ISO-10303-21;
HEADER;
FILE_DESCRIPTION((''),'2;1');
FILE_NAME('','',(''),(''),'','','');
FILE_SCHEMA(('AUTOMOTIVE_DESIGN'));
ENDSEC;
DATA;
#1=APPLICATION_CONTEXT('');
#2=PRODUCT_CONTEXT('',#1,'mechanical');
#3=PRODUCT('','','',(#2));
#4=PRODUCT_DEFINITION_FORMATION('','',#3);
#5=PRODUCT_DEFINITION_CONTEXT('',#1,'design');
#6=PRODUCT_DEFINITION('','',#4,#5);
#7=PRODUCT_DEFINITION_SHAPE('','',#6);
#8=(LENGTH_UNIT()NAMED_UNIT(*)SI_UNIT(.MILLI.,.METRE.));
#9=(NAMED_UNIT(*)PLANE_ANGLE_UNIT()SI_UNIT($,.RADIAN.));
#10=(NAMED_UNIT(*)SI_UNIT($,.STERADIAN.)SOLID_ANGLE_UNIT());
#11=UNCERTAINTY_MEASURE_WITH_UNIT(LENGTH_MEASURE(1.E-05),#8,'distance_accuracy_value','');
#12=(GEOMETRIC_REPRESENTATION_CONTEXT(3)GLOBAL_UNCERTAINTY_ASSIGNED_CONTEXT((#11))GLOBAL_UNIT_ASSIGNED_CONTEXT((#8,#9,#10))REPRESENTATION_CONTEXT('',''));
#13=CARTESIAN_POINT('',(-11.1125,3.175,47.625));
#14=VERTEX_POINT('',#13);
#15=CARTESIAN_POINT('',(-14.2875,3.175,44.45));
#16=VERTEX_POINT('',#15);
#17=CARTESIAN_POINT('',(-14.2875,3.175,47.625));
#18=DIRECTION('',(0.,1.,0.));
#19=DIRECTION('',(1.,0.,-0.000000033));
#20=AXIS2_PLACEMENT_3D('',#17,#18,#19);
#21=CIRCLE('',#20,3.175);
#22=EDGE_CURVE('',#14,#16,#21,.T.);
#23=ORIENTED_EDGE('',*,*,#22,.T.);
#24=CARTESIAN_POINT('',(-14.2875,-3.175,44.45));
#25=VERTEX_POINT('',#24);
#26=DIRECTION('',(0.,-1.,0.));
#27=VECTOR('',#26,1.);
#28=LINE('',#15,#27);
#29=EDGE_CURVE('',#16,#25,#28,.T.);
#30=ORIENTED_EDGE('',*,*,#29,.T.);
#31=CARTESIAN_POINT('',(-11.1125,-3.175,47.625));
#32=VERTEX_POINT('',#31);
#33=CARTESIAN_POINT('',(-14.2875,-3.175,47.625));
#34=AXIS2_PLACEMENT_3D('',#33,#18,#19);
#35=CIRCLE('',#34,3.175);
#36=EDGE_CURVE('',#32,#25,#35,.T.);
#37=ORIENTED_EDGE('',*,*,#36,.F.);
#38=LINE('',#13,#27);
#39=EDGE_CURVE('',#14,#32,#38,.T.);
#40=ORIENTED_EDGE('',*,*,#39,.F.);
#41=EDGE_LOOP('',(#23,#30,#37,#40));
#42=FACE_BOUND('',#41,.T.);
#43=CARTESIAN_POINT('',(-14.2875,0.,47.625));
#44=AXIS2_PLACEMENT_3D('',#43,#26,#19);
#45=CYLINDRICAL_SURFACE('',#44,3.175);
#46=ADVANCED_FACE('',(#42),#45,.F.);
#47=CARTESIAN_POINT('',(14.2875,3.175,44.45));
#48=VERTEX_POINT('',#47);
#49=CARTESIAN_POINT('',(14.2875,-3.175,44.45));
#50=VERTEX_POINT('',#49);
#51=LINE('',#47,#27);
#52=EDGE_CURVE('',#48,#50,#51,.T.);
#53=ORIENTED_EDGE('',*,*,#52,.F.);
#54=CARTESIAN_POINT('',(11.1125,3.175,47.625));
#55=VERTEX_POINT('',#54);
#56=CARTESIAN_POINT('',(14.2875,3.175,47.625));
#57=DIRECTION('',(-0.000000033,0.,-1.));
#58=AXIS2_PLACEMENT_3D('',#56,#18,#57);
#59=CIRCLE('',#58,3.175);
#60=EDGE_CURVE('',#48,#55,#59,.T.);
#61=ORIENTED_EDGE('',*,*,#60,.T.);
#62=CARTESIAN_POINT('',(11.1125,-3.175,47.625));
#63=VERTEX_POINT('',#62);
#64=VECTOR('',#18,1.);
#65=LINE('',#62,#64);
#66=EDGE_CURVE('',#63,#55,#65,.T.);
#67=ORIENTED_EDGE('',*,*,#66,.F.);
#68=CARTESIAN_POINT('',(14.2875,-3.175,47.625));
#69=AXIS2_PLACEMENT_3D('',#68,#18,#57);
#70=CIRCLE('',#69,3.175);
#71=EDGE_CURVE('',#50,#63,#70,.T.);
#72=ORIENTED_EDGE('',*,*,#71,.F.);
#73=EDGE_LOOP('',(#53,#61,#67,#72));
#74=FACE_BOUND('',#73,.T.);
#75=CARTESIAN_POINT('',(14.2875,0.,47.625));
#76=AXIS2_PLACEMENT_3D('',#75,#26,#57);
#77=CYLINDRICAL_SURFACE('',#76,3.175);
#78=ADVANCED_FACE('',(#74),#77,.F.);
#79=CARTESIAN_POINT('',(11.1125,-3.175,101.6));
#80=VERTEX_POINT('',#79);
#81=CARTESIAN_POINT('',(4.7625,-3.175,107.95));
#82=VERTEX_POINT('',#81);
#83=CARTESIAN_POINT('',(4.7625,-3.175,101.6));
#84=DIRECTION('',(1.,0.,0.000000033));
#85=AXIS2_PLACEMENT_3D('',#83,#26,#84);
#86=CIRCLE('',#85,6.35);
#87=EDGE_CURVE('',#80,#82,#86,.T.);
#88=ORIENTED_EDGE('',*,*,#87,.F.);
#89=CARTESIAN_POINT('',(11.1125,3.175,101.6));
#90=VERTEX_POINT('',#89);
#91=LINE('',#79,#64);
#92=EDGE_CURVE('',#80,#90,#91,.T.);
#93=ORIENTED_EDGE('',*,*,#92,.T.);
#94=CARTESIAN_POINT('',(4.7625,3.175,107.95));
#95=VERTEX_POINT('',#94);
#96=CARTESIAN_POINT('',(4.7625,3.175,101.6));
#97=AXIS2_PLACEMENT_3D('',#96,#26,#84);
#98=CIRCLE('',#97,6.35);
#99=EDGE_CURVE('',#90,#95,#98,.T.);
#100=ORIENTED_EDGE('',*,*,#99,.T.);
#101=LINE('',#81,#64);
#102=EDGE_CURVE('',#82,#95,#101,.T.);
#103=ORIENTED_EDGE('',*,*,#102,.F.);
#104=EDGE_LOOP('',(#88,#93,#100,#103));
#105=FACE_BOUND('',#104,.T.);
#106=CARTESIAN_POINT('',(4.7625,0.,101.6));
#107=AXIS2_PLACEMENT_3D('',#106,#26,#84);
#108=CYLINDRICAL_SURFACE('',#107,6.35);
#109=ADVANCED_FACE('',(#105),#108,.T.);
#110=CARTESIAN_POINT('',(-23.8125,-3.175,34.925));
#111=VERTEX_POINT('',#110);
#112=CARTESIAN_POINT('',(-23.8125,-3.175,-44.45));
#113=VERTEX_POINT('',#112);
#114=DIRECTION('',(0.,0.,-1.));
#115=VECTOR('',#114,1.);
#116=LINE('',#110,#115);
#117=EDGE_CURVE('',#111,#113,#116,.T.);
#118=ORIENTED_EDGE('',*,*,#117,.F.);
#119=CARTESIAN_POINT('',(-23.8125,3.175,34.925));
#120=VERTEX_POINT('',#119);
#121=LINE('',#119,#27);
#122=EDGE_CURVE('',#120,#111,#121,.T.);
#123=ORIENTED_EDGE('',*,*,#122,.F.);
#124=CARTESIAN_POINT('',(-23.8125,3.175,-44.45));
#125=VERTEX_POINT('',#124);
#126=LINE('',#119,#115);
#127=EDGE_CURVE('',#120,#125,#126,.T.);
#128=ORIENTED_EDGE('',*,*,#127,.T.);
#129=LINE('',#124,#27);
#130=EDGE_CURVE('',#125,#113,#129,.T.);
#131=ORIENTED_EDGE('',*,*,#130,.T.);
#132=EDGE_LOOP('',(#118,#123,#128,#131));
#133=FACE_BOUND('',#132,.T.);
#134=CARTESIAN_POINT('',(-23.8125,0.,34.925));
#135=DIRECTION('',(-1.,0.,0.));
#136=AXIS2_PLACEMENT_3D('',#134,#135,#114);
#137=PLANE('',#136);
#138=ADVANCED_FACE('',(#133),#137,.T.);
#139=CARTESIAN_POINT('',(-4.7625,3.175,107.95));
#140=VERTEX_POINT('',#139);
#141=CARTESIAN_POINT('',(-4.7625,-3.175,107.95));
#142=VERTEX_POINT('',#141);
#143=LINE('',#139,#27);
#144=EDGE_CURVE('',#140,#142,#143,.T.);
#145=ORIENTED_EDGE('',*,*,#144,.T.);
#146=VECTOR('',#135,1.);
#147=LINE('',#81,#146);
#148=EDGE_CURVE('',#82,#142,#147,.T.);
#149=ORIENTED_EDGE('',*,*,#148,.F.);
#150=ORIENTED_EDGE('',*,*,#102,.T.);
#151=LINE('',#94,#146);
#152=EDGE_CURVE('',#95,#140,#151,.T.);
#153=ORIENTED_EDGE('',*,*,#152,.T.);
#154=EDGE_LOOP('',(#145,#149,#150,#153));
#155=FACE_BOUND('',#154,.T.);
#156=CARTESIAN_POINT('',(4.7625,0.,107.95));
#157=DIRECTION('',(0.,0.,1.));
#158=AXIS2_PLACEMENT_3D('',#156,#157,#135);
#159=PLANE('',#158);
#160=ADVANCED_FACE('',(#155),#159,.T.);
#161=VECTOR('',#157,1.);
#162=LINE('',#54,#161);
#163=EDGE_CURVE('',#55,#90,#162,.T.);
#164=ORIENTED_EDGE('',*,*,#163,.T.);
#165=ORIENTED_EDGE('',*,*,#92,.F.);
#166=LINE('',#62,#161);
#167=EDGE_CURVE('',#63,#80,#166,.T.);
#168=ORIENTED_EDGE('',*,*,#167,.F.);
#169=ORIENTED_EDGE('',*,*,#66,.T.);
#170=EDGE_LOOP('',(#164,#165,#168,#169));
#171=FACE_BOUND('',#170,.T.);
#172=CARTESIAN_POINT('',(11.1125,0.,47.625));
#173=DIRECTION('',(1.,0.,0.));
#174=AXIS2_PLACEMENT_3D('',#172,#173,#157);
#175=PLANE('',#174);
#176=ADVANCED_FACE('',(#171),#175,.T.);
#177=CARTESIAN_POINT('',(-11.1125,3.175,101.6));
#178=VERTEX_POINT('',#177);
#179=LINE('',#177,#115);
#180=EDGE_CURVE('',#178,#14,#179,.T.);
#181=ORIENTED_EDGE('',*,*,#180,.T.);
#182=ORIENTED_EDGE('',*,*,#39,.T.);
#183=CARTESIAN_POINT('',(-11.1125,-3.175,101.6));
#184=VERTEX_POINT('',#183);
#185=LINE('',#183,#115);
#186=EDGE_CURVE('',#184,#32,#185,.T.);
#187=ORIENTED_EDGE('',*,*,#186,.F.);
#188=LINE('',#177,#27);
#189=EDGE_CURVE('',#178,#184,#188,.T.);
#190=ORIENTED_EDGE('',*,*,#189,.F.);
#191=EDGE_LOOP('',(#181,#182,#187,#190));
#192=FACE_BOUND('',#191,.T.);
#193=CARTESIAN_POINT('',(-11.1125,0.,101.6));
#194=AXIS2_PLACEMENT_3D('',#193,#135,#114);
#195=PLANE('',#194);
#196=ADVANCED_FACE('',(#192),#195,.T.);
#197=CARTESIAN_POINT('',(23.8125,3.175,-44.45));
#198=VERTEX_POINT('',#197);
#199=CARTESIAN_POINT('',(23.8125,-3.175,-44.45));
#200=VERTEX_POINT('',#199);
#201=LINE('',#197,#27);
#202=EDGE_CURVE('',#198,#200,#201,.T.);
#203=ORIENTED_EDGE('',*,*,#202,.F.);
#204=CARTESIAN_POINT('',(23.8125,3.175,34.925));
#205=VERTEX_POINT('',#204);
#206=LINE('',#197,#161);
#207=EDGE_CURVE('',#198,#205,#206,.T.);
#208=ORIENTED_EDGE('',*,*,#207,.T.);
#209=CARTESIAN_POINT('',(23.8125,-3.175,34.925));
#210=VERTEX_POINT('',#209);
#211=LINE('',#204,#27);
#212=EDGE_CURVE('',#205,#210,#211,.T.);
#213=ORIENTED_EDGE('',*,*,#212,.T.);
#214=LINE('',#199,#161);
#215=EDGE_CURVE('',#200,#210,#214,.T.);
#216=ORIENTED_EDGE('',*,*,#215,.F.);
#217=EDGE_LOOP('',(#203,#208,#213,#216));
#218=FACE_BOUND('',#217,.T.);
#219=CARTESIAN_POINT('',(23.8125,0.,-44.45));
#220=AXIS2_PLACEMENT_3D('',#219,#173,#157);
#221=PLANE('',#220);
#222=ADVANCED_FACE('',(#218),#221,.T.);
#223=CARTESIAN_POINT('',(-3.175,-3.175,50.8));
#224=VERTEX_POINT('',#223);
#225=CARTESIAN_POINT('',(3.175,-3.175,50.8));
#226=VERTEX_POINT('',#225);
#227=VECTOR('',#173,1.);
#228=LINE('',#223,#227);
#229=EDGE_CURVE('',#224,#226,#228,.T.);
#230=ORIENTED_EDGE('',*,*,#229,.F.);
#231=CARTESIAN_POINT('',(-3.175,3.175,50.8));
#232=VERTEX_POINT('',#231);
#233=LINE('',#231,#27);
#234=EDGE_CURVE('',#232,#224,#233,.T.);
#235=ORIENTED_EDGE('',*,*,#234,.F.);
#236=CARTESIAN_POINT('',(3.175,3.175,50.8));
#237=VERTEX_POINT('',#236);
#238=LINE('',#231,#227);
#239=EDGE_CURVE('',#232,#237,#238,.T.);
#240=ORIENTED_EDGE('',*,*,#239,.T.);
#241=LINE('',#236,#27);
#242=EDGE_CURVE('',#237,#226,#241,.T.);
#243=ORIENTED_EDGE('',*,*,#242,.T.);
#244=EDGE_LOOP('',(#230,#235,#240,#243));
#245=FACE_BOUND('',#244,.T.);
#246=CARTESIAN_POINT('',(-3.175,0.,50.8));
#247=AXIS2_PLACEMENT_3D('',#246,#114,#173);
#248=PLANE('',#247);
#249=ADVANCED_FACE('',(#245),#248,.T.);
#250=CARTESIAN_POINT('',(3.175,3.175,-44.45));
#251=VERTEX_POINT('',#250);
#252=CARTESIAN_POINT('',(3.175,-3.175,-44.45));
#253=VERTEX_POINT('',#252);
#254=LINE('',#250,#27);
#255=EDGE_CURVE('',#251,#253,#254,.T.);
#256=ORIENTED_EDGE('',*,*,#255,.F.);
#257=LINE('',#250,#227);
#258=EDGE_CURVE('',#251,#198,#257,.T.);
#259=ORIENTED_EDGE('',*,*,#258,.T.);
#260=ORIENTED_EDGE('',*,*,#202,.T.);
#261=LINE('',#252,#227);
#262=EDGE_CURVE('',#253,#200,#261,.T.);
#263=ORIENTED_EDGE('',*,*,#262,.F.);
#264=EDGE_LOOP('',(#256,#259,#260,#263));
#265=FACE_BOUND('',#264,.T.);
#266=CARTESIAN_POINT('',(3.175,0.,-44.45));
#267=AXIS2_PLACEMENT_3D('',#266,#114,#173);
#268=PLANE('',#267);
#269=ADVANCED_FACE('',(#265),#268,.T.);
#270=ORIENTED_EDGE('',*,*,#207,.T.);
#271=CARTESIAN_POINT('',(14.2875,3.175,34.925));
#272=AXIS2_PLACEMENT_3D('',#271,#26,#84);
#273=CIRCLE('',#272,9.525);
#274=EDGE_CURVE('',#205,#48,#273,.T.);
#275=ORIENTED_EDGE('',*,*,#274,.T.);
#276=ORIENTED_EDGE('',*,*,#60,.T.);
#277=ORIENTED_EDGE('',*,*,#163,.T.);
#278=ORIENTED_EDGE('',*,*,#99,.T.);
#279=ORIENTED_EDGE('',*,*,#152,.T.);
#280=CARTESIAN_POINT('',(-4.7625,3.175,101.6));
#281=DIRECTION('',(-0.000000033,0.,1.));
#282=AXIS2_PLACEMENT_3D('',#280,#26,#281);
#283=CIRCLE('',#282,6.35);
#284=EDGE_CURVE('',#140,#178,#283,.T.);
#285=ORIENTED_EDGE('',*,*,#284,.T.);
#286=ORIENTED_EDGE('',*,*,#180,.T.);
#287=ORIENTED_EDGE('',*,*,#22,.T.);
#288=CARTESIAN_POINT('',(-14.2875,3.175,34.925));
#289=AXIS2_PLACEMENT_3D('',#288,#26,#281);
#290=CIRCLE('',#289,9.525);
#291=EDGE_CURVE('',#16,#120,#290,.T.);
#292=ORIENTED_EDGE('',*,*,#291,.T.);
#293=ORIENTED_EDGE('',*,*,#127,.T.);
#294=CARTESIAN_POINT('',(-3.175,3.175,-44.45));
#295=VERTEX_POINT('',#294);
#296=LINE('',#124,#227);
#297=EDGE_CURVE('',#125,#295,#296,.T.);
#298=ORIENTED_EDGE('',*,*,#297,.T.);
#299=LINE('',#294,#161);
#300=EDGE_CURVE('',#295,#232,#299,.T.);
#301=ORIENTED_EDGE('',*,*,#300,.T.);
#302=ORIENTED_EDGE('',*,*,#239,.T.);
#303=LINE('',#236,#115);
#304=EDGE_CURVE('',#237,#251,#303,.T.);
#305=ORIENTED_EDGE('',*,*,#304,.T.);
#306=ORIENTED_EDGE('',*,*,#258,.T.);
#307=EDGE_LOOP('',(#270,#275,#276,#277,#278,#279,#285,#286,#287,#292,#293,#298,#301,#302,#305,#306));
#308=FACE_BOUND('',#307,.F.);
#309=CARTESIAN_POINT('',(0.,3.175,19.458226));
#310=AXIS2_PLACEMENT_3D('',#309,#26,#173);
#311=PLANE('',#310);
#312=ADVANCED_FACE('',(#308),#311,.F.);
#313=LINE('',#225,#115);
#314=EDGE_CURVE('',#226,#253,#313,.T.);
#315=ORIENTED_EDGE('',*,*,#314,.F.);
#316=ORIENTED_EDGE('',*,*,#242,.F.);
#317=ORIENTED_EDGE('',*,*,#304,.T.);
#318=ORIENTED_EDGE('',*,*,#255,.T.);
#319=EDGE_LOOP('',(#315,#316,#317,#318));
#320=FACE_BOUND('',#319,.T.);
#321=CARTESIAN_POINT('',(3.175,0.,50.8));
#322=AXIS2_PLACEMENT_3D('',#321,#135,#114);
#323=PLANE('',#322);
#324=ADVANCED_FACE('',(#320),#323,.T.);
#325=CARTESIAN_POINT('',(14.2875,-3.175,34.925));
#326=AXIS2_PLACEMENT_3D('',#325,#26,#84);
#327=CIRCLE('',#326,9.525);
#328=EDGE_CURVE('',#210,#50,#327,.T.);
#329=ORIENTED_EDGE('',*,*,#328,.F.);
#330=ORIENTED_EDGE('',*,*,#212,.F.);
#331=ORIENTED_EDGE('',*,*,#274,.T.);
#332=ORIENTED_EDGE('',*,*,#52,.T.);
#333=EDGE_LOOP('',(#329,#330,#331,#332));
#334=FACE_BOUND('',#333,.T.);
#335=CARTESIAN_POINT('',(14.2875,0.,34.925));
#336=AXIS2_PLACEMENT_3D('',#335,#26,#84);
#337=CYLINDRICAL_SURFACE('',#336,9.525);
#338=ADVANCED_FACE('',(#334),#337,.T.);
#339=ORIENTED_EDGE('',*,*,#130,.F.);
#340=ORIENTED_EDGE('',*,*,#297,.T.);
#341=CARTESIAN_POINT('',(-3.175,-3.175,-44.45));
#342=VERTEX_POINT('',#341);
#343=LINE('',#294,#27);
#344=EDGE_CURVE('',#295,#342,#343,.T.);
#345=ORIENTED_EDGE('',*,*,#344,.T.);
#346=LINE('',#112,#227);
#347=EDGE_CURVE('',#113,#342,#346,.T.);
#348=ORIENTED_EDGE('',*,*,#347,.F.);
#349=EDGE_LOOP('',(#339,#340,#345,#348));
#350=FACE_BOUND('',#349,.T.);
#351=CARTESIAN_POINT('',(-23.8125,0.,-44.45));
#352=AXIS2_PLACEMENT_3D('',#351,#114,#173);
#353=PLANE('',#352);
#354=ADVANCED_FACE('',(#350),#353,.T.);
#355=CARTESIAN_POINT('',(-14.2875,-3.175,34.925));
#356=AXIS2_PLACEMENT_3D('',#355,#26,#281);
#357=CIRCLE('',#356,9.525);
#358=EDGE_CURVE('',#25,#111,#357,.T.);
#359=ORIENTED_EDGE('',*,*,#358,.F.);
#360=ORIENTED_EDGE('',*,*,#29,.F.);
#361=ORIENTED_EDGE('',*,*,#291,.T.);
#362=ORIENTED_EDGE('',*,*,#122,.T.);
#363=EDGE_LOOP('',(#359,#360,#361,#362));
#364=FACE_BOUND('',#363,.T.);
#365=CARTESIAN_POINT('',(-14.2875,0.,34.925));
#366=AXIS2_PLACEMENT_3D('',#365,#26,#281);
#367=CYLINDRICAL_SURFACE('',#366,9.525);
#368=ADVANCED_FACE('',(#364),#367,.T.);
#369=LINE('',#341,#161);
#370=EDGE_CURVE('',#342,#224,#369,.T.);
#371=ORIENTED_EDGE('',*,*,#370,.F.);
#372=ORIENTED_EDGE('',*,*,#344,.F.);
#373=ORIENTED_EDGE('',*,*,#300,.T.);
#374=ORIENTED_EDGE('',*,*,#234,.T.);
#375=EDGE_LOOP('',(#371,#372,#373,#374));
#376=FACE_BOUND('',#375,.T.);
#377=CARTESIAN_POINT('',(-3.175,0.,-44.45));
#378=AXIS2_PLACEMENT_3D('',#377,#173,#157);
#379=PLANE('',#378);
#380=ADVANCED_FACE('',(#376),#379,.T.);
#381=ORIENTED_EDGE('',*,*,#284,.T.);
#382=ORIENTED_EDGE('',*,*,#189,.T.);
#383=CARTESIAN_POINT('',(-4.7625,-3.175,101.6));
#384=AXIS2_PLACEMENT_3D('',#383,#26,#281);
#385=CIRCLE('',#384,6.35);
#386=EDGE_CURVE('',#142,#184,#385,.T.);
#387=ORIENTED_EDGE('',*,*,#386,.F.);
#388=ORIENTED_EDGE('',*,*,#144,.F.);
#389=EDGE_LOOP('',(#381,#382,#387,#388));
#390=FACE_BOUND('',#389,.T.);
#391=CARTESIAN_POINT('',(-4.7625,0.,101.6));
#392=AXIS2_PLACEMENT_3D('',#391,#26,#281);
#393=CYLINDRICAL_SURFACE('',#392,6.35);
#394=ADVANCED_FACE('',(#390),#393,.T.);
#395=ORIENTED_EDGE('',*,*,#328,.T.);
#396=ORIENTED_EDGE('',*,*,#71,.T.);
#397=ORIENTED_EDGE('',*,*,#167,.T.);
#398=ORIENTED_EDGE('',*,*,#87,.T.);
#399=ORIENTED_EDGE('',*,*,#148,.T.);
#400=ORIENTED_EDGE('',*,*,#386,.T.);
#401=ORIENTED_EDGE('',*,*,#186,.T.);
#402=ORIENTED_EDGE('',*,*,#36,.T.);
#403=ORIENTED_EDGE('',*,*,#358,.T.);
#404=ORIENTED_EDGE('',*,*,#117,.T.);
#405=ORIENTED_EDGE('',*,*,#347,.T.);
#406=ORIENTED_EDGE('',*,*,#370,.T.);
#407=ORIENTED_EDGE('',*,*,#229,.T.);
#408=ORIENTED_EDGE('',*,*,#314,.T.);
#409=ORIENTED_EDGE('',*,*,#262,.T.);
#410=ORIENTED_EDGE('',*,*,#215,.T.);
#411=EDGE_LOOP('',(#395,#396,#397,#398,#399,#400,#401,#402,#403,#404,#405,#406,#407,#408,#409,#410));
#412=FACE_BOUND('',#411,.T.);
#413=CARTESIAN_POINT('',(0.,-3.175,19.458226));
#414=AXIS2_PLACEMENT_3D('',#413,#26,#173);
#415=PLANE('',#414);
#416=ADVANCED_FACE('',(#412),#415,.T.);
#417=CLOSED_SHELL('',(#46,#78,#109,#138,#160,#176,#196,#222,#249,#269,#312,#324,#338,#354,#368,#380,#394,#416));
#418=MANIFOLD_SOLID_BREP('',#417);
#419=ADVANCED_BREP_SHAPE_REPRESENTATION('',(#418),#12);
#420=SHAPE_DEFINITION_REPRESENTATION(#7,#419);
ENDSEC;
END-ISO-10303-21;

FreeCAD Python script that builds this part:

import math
import FreeCAD as App
import Part
import Sketcher
from FreeCAD import Vector
Q = App.Units.Quantity

doc = App.newDocument("Part")
body = doc.addObject("PartDesign::Body", "Body")

# Sketch on XZ plane
sketch1 = body.newObject("Sketcher::SketchObject", "Sketch")
sketch1.AttachmentSupport = (doc.getObject("XZ_Plane"), [""])
sketch1.MapMode = "FlatFace"
sketch1.addGeometry([
    Part.LineSegment(Vector(4.7625, 107.95, 0), Vector(-4.7625, 107.95, 0)),  # 0
    Part.ArcOfCircle(Part.Circle(Vector(-4.7625, 101.6, 0), Vector(0, 0, 1), 6.35), math.radians(90.000002), math.radians(179.999998)),  # 1
    Part.LineSegment(Vector(-11.1125, 101.6, 0), Vector(-11.1125, 47.625, 0)),  # 2
    Part.ArcOfCircle(Part.Circle(Vector(-14.2875, 47.625, 0), Vector(0, 0, 1), 3.175), math.radians(-89.999998), math.radians(-0.000002)),  # 3
    Part.ArcOfCircle(Part.Circle(Vector(-14.2875, 34.925, 0), Vector(0, 0, 1), 9.525), math.radians(90.000002), math.radians(179.999998)),  # 4
    Part.LineSegment(Vector(-23.8125, 34.925, 0), Vector(-23.8125, -44.45, 0)),  # 5
    Part.LineSegment(Vector(-23.8125, -44.45, 0), Vector(-3.175, -44.45, 0)),  # 6
    Part.LineSegment(Vector(-3.175, -44.45, 0), Vector(-3.175, 50.8, 0)),  # 7
    Part.LineSegment(Vector(-3.175, 50.8, 0), Vector(3.175, 50.8, 0)),  # 8
    Part.LineSegment(Vector(3.175, 50.8, 0), Vector(3.175, -44.45, 0)),  # 9
    Part.LineSegment(Vector(3.175, -44.45, 0), Vector(23.8125, -44.45, 0)),  # 10
    Part.LineSegment(Vector(23.8125, -44.45, 0), Vector(23.8125, 34.925, 0)),  # 11
    Part.ArcOfCircle(Part.Circle(Vector(14.2875, 34.925, 0), Vector(0, 0, 1), 9.525), math.radians(0.000002), math.radians(89.999998)),  # 12
    Part.ArcOfCircle(Part.Circle(Vector(14.2875, 47.625, 0), Vector(0, 0, 1), 3.175), math.radians(-179.999998), math.radians(-90.000002)),  # 13
    Part.LineSegment(Vector(11.1125, 47.625, 0), Vector(11.1125, 101.6, 0)),  # 14
    Part.ArcOfCircle(Part.Circle(Vector(4.7625, 101.6, 0), Vector(0, 0, 1), 6.35), math.radians(0.000002), math.radians(89.999998)),  # 15
], False)
sketch1.addConstraint([
    Sketcher.Constraint("Tangent", 0, 2, 1, 1),
    Sketcher.Constraint("Tangent", 1, 2, 2, 1),
    Sketcher.Constraint("Tangent", 2, 2, 3, 2),
    Sketcher.Constraint("Tangent", 3, 1, 4, 1),
    Sketcher.Constraint("Tangent", 4, 2, 5, 1),
    Sketcher.Constraint("Coincident", 5, 2, 6, 1),
    Sketcher.Constraint("Coincident", 6, 2, 7, 1),
    Sketcher.Constraint("Coincident", 7, 2, 8, 1),
    Sketcher.Constraint("Coincident", 8, 2, 9, 1),
    Sketcher.Constraint("Coincident", 9, 2, 10, 1),
    Sketcher.Constraint("Coincident", 10, 2, 11, 1),
    Sketcher.Constraint("Tangent", 11, 2, 12, 1),
    Sketcher.Constraint("Tangent", 12, 2, 13, 2),
    Sketcher.Constraint("Tangent", 13, 1, 14, 1),
    Sketcher.Constraint("Tangent", 14, 2, 15, 1),
    Sketcher.Constraint("Tangent", 15, 2, 0, 1),
    Sketcher.Constraint("Horizontal", 0),
    Sketcher.Constraint("Vertical", 2),
    Sketcher.Constraint("Vertical", 5),
    Sketcher.Constraint("Horizontal", 6),
    Sketcher.Constraint("Vertical", 7),
    Sketcher.Constraint("Horizontal", 8),
    Sketcher.Constraint("Vertical", 9),
    Sketcher.Constraint("Horizontal", 10),
    Sketcher.Constraint("Vertical", 11),
    Sketcher.Constraint("Vertical", 14),
    Sketcher.Constraint("Equal", 4, 12),
    Sketcher.Constraint("Equal", 3, 13),
    Sketcher.Constraint("Equal", 1, 15),
    Sketcher.Constraint("Symmetric", 4, 3, 12, 3, -2),
    Sketcher.Constraint("Symmetric", 6, 2, 9, 2, -2),
    Sketcher.Constraint("Vertical", 3, 3, 4, 3),
    Sketcher.Constraint("Vertical", 12, 3, 13, 3),
    Sketcher.Constraint("Radius", 1, Q("0.25 in")),
    Sketcher.Constraint("DistanceY", -1, 1, 1, 3, Q("4 in")),
    Sketcher.Constraint("DistanceY", -1, 1, 7, 2, Q("2 in")),
    Sketcher.Constraint("Radius", 3, Q("0.125 in")),
    Sketcher.Constraint("Radius", 4, Q("0.375 in")),
    Sketcher.Constraint("DistanceX", 1, 2, 13, 3, Q("1 in")),
    Sketcher.Constraint("DistanceX", 8, 1, 8, 2, Q("0.25 in")),
    Sketcher.Constraint("DistanceY", 7, 1, 7, 2, Q("3.75 in")),
    Sketcher.Constraint("DistanceY", 5, 2, 3, 1, Q("3.5 in")),
])
pad1 = body.newObject("PartDesign::Pad", "Pad")
pad1.Profile = sketch1
pad1.Length = Q("0.25 in")
pad1.Midplane = True

doc.recompute()
